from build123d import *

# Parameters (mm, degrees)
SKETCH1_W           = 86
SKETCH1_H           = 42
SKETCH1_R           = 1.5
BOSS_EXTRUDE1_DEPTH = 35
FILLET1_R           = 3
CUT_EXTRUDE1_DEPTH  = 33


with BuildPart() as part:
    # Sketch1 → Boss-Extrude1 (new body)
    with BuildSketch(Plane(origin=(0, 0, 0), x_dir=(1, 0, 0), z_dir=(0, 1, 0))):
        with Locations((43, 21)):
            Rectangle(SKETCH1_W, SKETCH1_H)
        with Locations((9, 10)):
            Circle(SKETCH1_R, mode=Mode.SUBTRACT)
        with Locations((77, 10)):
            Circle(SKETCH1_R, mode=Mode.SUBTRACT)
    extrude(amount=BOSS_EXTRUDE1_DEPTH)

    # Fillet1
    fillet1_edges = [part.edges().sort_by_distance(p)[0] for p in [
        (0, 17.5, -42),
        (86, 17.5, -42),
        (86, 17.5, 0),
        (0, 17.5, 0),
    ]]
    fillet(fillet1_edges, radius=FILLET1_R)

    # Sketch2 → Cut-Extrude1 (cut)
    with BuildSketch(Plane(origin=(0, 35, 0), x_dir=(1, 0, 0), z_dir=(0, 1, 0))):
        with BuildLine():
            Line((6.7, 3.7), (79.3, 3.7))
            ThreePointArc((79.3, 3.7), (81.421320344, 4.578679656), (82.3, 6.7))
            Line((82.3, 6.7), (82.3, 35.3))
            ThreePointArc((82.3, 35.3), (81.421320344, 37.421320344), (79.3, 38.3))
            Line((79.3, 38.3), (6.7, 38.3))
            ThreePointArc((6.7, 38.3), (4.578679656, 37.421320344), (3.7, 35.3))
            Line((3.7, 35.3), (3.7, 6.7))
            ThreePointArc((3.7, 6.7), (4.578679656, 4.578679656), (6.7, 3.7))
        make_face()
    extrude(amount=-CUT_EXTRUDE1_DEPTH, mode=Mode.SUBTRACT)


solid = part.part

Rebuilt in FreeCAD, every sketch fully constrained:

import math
import FreeCAD as App
import Part
import Sketcher

V = App.Vector


def edges_at(feature, points):
    """Names of the edges that pass closest to the given points."""
    edges = feature.Shape.Edges
    near = lambda p: min(range(len(edges)), key=lambda i: edges[i].distToShape(Part.Vertex(*p))[0])
    return sorted({f"Edge{near(p) + 1}" for p in points})


def add_polygon(sketch, points):
    """Adds a closed chain of lines whose ends are joined by coincident constraints."""
    first, n = sketch.GeometryCount, len(points)
    for a, b in zip(points, points[1:] + points[:1]):
        sketch.addGeometry(Part.LineSegment(App.Vector(*a, 0), App.Vector(*b, 0)), False)
    for i in range(n):
        sketch.addConstraint(Sketcher.Constraint("Coincident", first + i, 2, first + (i + 1) % n, 1))

doc = App.newDocument("Part")
body = doc.addObject("PartDesign::Body", "Body")

sketch1 = body.newObject("Sketcher::SketchObject", "Sketch")
sketch1.AttachmentSupport = (doc.getObject("XZ_Plane"), [""])
sketch1.MapMode = "FlatFace"
add_polygon(sketch1, [(0, -42), (0, 0), (86, 0), (86, -42)])
sketch1.addGeometry(Part.Circle(V(9, -10, 0), V(0, 0, 1), 1.5), False)
sketch1.addGeometry(Part.Circle(V(77, -10, 0), V(0, 0, 1), 1.5), False)
sketch1.addConstraint([
    Sketcher.Constraint("Vertical", 0),
    Sketcher.Constraint("Horizontal", 1),
    Sketcher.Constraint("Vertical", 2),
    Sketcher.Constraint("Horizontal", 3),
    Sketcher.Constraint("Coincident", 0, 2, -1, 1),
    Sketcher.Constraint("Equal", 4, 5),
    Sketcher.Constraint("Horizontal", 4, 3, 5, 3),
    Sketcher.Constraint("Diameter", 4, 3.0),
    Sketcher.Constraint("DistanceX", 1, 1, 1, 2, 86.0),
    Sketcher.Constraint("DistanceY", 0, 1, 0, 2, 42.0),
    Sketcher.Constraint("DistanceX", -1, 1, 4, 3, 9.0),
    Sketcher.Constraint("DistanceY", 4, 3, -1, 1, 10.0),
    Sketcher.Constraint("DistanceX", -1, 1, 5, 3, 77.0),
])
pad1 = body.newObject("PartDesign::Pad", "Pad")
pad1.Profile = sketch1
pad1.Length = 35
pad1.Reversed = True
doc.recompute()

fillet = body.newObject("PartDesign::Fillet", "Fillet")
fillet.Base = (pad1, edges_at(pad1, [
    (0, 17.5, -42),
    (86, 17.5, -42),
    (86, 17.5, 0),
    (0, 17.5, 0),
]))
fillet.Radius = 3

sketch2 = body.newObject("Sketcher::SketchObject", "Sketch001")
sketch2.AttachmentSupport = (doc.getObject("XZ_Plane"), [""])
sketch2.MapMode = "FlatFace"
sketch2.AttachmentOffset = App.Placement(V(0, 0, -35), App.Rotation())
sketch2.addGeometry([
    Part.LineSegment(V(6.7, -3.7, 0), V(79.3, -3.7, 0)),
    Part.ArcOfCircle(Part.Circle(V(79.3, -6.7, 0), V(0, 0, 1), 3), math.radians(0), math.radians(90)),
    Part.LineSegment(V(82.3, -6.7, 0), V(82.3, -35.3, 0)),
    Part.ArcOfCircle(Part.Circle(V(79.3, -35.3, 0), V(0, 0, 1), 3), math.radians(-90), math.radians(0)),
    Part.LineSegment(V(79.3, -38.3, 0), V(6.7, -38.3, 0)),
    Part.ArcOfCircle(Part.Circle(V(6.7, -35.3, 0), V(0, 0, 1), 3), math.radians(180), math.radians(270)),
    Part.LineSegment(V(3.7, -35.3, 0), V(3.7, -6.7, 0)),
    Part.ArcOfCircle(Part.Circle(V(6.7, -6.7, 0), V(0, 0, 1), 3), math.radians(90), math.radians(180)),
], False)
sketch2.addConstraint([
    Sketcher.Constraint("Tangent", 0, 2, 1, 2),
    Sketcher.Constraint("Tangent", 1, 1, 2, 1),
    Sketcher.Constraint("Tangent", 2, 2, 3, 2),
    Sketcher.Constraint("Tangent", 3, 1, 4, 1),
    Sketcher.Constraint("Tangent", 4, 2, 5, 2),
    Sketcher.Constraint("Tangent", 5, 1, 6, 1),
    Sketcher.Constraint("Tangent", 6, 2, 7, 2),
    Sketcher.Constraint("Tangent", 7, 1, 0, 1),
    Sketcher.Constraint("Horizontal", 0),
    Sketcher.Constraint("Vertical", 2),
    Sketcher.Constraint("Horizontal", 4),
    Sketcher.Constraint("Vertical", 6),
    Sketcher.Constraint("Equal", 1, 3),
    Sketcher.Constraint("Equal", 3, 5),
    Sketcher.Constraint("Equal", 5, 7),
    Sketcher.Constraint("Radius", 1, 3.0),
    Sketcher.Constraint("DistanceX", 0, 1, 0, 2, 72.6),
    Sketcher.Constraint("DistanceY", 2, 2, 2, 1, 28.6),
    Sketcher.Constraint("DistanceX", -1, 1, 1, 3, 79.3),
    Sketcher.Constraint("DistanceY", 1, 3, -1, 1, 6.7),
])
pocket1 = body.newObject("PartDesign::Pocket", "Pocket")
pocket1.Profile = sketch2
pocket1.Length = 33
pocket1.Reversed = True

doc.recompute()
